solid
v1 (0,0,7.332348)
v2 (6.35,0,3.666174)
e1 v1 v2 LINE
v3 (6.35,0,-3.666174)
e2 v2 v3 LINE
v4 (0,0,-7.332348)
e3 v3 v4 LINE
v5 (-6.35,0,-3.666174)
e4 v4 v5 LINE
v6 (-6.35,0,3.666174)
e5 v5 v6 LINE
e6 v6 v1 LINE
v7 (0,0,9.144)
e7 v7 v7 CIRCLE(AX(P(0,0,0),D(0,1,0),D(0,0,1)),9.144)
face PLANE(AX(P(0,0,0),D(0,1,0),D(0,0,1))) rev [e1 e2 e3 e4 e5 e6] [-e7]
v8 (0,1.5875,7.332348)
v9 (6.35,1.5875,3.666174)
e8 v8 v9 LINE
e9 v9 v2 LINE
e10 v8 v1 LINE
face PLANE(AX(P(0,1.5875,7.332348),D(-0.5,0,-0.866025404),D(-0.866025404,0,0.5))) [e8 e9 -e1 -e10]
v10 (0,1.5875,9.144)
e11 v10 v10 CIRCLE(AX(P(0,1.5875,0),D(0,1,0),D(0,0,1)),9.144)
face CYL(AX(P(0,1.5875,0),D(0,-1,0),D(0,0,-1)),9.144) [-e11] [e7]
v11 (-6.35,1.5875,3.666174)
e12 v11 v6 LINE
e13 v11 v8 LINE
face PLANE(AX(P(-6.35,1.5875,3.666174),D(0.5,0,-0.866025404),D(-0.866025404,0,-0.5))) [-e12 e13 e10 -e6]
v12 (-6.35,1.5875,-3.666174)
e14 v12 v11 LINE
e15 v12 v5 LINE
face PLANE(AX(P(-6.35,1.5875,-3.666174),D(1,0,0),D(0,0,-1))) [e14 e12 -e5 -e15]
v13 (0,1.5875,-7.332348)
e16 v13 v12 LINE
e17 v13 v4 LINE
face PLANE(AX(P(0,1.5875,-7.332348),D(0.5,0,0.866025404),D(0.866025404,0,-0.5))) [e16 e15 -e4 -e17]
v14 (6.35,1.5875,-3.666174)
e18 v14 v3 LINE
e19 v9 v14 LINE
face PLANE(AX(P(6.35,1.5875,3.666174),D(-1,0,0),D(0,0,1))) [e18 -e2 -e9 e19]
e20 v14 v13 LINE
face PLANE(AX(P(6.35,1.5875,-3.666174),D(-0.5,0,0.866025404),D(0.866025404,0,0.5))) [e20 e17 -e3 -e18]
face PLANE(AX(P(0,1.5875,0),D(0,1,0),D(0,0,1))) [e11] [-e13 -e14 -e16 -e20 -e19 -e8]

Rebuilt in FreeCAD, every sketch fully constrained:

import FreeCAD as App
import Part
import Sketcher
from FreeCAD import Vector
Q = App.Units.Quantity


def add_polygon(sketch, points):
    """Adds a closed chain of lines whose ends are joined by coincident constraints."""
    first, n = sketch.GeometryCount, len(points)
    for a, b in zip(points, points[1:] + points[:1]):
        sketch.addGeometry(Part.LineSegment(App.Vector(*a, 0), App.Vector(*b, 0)), False)
    for i in range(n):
        sketch.addConstraint(Sketcher.Constraint("Coincident", first + i, 2, first + (i + 1) % n, 1))

doc = App.newDocument("Part")
body = doc.addObject("PartDesign::Body", "Body")

# Sketch on XZ plane
sketch1 = doc.addObject("Sketcher::SketchObject", "Sketch")
body.addObject(sketch1)
sketch1.AttachmentSupport = (doc.XZ_Plane, [""])
sketch1.MapMode = "FlatFace"
sketch1.addGeometry(Part.Circle(Vector(0, 0, 0), Vector(0, 0, 1), 9), False)  # 0
add_polygon(sketch1, [(6, -4), (6, 4), (0, 7), (-6, 4), (-6, -4), (0, -7)])  # lines 1-6
sketch1.addConstraint([
    Sketcher.Constraint("Vertical", 1),
    Sketcher.Constraint("Vertical", 4),
    Sketcher.Constraint("Coincident", 0, 3, -1, 1),
    Sketcher.Constraint("Symmetric", 1, 2, 4, 2, -1, 1),
    Sketcher.Constraint("Symmetric", 2, 2, 5, 2, -1, 1),
    Sketcher.Constraint("PointOnObject", 2, 2, -2),
    Sketcher.Constraint("Parallel", 3, 6),
    Sketcher.Constraint("Horizontal", 1, 2, 3, 2),
    Sketcher.Constraint("Diameter", 0, Q("0.72 in")),
    Sketcher.Constraint("Angle", 2, Q("150 deg")),
    Sketcher.Constraint("DistanceX", 3, 2, 1, 2, Q("0.5 in")),
    Sketcher.Constraint("DistanceY", 1, 1, 1, 2, 7.332348),
])
pad1 = doc.addObject("PartDesign::Pad", "Pad")
body.addObject(pad1)
pad1.Profile = sketch1
pad1.Length = Q("0.0625 in")
pad1.Reversed = True

doc.recompute()
